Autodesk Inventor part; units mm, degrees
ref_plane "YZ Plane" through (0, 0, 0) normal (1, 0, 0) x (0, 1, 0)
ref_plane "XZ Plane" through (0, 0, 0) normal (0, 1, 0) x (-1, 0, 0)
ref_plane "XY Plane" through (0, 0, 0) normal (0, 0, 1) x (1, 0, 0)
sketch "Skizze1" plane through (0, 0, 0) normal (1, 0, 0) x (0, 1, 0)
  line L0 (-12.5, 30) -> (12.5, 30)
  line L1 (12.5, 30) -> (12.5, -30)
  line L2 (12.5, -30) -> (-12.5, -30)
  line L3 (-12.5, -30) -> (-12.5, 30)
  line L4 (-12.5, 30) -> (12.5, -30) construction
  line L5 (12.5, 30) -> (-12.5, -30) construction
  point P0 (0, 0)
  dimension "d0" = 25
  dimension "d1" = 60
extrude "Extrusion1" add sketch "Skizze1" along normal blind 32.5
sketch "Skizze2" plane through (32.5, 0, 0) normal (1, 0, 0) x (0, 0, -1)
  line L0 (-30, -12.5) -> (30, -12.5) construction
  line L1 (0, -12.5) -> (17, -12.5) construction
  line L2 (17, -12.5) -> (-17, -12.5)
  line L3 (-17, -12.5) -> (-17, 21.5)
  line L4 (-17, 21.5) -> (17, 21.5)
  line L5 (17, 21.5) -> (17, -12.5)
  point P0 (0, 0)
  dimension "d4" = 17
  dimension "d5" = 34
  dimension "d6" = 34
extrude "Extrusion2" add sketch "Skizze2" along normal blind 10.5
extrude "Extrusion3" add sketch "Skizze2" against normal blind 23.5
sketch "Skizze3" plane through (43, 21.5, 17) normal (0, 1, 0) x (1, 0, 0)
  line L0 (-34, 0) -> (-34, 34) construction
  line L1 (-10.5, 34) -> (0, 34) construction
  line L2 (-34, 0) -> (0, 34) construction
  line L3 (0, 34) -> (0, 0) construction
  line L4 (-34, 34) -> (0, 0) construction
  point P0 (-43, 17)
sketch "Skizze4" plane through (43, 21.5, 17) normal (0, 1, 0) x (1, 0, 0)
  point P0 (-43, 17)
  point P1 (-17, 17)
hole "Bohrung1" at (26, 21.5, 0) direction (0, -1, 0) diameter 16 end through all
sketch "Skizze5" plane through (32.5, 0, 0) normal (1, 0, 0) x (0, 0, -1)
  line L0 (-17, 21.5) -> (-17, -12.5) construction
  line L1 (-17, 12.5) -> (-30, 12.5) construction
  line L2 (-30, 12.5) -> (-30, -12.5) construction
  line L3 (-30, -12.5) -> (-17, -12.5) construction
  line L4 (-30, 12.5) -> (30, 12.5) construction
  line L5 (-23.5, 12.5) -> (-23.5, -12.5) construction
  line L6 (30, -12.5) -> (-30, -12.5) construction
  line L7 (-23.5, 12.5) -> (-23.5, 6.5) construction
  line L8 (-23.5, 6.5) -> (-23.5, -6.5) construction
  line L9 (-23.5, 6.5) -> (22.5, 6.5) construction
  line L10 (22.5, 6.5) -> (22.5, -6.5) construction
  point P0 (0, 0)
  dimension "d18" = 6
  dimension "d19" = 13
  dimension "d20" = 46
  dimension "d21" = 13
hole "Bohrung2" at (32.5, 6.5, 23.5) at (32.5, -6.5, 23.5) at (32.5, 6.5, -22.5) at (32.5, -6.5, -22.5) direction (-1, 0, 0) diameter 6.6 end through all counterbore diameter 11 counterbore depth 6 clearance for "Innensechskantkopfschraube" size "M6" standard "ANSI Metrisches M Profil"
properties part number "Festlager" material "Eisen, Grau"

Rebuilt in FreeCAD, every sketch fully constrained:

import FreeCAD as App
import Part
import Sketcher
from FreeCAD import Vector

doc = App.newDocument("Part")
body = doc.addObject("PartDesign::Body", "Body")

# Sketch on YZ plane
sketch1 = body.newObject("Sketcher::SketchObject", "Sketch")
sketch1.AttachmentSupport = (doc.getObject("YZ_Plane"), [""])
sketch1.MapMode = "FlatFace"
sketch1.addGeometry(Part.LineSegment(Vector(12, 30, 0), Vector(-12, 30, 0)), False)
sketch1.addGeometry(Part.LineSegment(Vector(-12, 30, 0), Vector(-12, -30, 0)), False)
sketch1.addGeometry(Part.LineSegment(Vector(-12, -30, 0), Vector(12, -30, 0)), False)
sketch1.addGeometry(Part.LineSegment(Vector(12, -30, 0), Vector(12, 30, 0)), False)
sketch1.addConstraint(Sketcher.Constraint("Coincident", 0, 2, 1, 1))
sketch1.addConstraint(Sketcher.Constraint("Coincident", 1, 2, 2, 1))
sketch1.addConstraint(Sketcher.Constraint("Coincident", 2, 2, 3, 1))
sketch1.addConstraint(Sketcher.Constraint("Coincident", 3, 2, 0, 1))
sketch1.addConstraint(Sketcher.Constraint("Horizontal", 0))
sketch1.addConstraint(Sketcher.Constraint("Vertical", 1))
sketch1.addConstraint(Sketcher.Constraint("Horizontal", 2))
sketch1.addConstraint(Sketcher.Constraint("Vertical", 3))
sketch1.addConstraint(Sketcher.Constraint("Symmetric", 0, 2, 2, 2, -1, 1))
sketch1.addConstraint(Sketcher.Constraint("DistanceX", 0, 2, 0, 1, 25.0))
sketch1.addConstraint(Sketcher.Constraint("DistanceY", 1, 2, 1, 1, 60.0))
pad1 = body.newObject("PartDesign::Pad", "Pad")
pad1.Profile = sketch1
pad1.Length = 32.5

# Sketch on YZ plane
sketch2 = body.newObject("Sketcher::SketchObject", "Sketch001")
sketch2.AttachmentSupport = (doc.getObject("YZ_Plane"), [""])
sketch2.MapMode = "FlatFace"
sketch2.AttachmentOffset = App.Placement(Vector(0, 0, 32.5), App.Rotation())
sketch2.addGeometry(Part.LineSegment(Vector(-12, 17, 0), Vector(-12, -17, 0)), False)
sketch2.addGeometry(Part.LineSegment(Vector(-12, -17, 0), Vector(22, -17, 0)), False)
sketch2.addGeometry(Part.LineSegment(Vector(22, -17, 0), Vector(22, 17, 0)), False)
sketch2.addGeometry(Part.LineSegment(Vector(22, 17, 0), Vector(-12, 17, 0)), False)
sketch2.addConstraint(Sketcher.Constraint("Coincident", 0, 2, 1, 1))
sketch2.addConstraint(Sketcher.Constraint("Coincident", 1, 2, 2, 1))
sketch2.addConstraint(Sketcher.Constraint("Coincident", 2, 2, 3, 1))
sketch2.addConstraint(Sketcher.Constraint("Coincident", 3, 2, 0, 1))
sketch2.addConstraint(Sketcher.Constraint("Vertical", 0))
sketch2.addConstraint(Sketcher.Constraint("Horizontal", 1))
sketch2.addConstraint(Sketcher.Constraint("Vertical", 2))
sketch2.addConstraint(Sketcher.Constraint("Horizontal", 3))
sketch2.addConstraint(Sketcher.Constraint("Equal", 3, 0))
sketch2.addConstraint(Sketcher.Constraint("DistanceX", 1, 1, 1, 2, 34.0))
sketch2.addConstraint(Sketcher.Constraint("DistanceY", 0, 2, -1, 1, 17.0))
sketch2.addConstraint(Sketcher.Constraint("DistanceX", 0, 2, -1, 1, 12.5))
pad2 = body.newObject("PartDesign::Pad", "Pad001")
pad2.Profile = sketch2
pad2.Length = 10.5

# Sketch on YZ plane
sketch3 = body.newObject("Sketcher::SketchObject", "Sketch002")
sketch3.AttachmentSupport = (doc.getObject("YZ_Plane"), [""])
sketch3.MapMode = "FlatFace"
sketch3.AttachmentOffset = App.Placement(Vector(0, 0, 32.5), App.Rotation())
sketch3.addGeometry(Part.LineSegment(Vector(-12, 17, 0), Vector(-12, -17, 0)), False)
sketch3.addGeometry(Part.LineSegment(Vector(-12, -17, 0), Vector(22, -17, 0)), False)
sketch3.addGeometry(Part.LineSegment(Vector(22, -17, 0), Vector(22, 17, 0)), False)
sketch3.addGeometry(Part.LineSegment(Vector(22, 17, 0), Vector(-12, 17, 0)), False)
sketch3.addConstraint(Sketcher.Constraint("Coincident", 0, 2, 1, 1))
sketch3.addConstraint(Sketcher.Constraint("Coincident", 1, 2, 2, 1))
sketch3.addConstraint(Sketcher.Constraint("Coincident", 2, 2, 3, 1))
sketch3.addConstraint(Sketcher.Constraint("Coincident", 3, 2, 0, 1))
sketch3.addConstraint(Sketcher.Constraint("Vertical", 0))
sketch3.addConstraint(Sketcher.Constraint("Horizontal", 1))
sketch3.addConstraint(Sketcher.Constraint("Vertical", 2))
sketch3.addConstraint(Sketcher.Constraint("Horizontal", 3))
sketch3.addConstraint(Sketcher.Constraint("Equal", 3, 0))
sketch3.addConstraint(Sketcher.Constraint("DistanceX", 1, 1, 1, 2, 34.0))
sketch3.addConstraint(Sketcher.Constraint("DistanceY", 0, 2, -1, 1, 17.0))
sketch3.addConstraint(Sketcher.Constraint("DistanceX", 0, 2, -1, 1, 12.5))
pad3 = body.newObject("PartDesign::Pad", "Pad002")
pad3.Profile = sketch3
pad3.Length = 23.5
pad3.Reversed = True

# Sketch on XZ plane
sketch4 = body.newObject("Sketcher::SketchObject", "Sketch003")
sketch4.AttachmentSupport = (doc.getObject("XZ_Plane"), [""])
sketch4.MapMode = "FlatFace"
sketch4.AttachmentOffset = App.Placement(Vector(0, 0, -21.5), App.Rotation())
sketch4.addGeometry(Part.Circle(Vector(26, 0, 0), Vector(0, 0, 1), 8), False)
sketch4.addConstraint(Sketcher.Constraint("PointOnObject", 0, 3, -1))
sketch4.addConstraint(Sketcher.Constraint("Diameter", 0, 16.0))
sketch4.addConstraint(Sketcher.Constraint("DistanceX", -1, 1, 0, 3, 26.0))
doc.recompute()
hole = body.newObject("PartDesign::Hole", "Hole")
hole.Profile = sketch4
hole.ThreadType = "None"
hole.Diameter = 16
hole.DepthType = "ThroughAll"
hole.Reversed = True

# Sketch on YZ plane
sketch5 = body.newObject("Sketcher::SketchObject", "Sketch004")
sketch5.AttachmentSupport = (doc.getObject("YZ_Plane"), [""])
sketch5.MapMode = "FlatFace"
sketch5.AttachmentOffset = App.Placement(Vector(0, 0, 32.5), App.Rotation())
sketch5.addGeometry(Part.Circle(Vector(6.5, 23.5, 0), Vector(0, 0, 1), 3.3), False)
sketch5.addGeometry(Part.Circle(Vector(-6.5, 23.5, 0), Vector(0, 0, 1), 3.3), False)
sketch5.addGeometry(Part.Circle(Vector(6.5, -22.5, 0), Vector(0, 0, 1), 3.3), False)
sketch5.addGeometry(Part.Circle(Vector(-6.5, -22.5, 0), Vector(0, 0, 1), 3.3), False)
sketch5.addConstraint(Sketcher.Constraint("Equal", 0, 1))
sketch5.addConstraint(Sketcher.Constraint("Equal", 1, 2))
sketch5.addConstraint(Sketcher.Constraint("Equal", 2, 3))
sketch5.addConstraint(Sketcher.Constraint("Symmetric", 0, 3, 1, 3, -2))
sketch5.addConstraint(Sketcher.Constraint("Symmetric", 2, 3, 3, 3, -2))
sketch5.addConstraint(Sketcher.Constraint("Vertical", 0, 3, 2, 3))
sketch5.addConstraint(Sketcher.Constraint("Diameter", 0, 6.6))
sketch5.addConstraint(Sketcher.Constraint("DistanceX", 1, 3, 0, 3, 13.0))
sketch5.addConstraint(Sketcher.Constraint("DistanceY", 2, 3, 0, 3, 46.0))
sketch5.addConstraint(Sketcher.Constraint("DistanceY", -1, 1, 0, 3, 23.5))
doc.recompute()
hole2 = body.newObject("PartDesign::Hole", "Hole001")
hole2.Profile = sketch5
hole2.ThreadType = "None"
hole2.Diameter = 6.6
hole2.DepthType = "ThroughAll"
hole2.HoleCutType = "Counterbore"
hole2.HoleCutDiameter = 11
hole2.HoleCutDepth = 6

doc.recompute()
